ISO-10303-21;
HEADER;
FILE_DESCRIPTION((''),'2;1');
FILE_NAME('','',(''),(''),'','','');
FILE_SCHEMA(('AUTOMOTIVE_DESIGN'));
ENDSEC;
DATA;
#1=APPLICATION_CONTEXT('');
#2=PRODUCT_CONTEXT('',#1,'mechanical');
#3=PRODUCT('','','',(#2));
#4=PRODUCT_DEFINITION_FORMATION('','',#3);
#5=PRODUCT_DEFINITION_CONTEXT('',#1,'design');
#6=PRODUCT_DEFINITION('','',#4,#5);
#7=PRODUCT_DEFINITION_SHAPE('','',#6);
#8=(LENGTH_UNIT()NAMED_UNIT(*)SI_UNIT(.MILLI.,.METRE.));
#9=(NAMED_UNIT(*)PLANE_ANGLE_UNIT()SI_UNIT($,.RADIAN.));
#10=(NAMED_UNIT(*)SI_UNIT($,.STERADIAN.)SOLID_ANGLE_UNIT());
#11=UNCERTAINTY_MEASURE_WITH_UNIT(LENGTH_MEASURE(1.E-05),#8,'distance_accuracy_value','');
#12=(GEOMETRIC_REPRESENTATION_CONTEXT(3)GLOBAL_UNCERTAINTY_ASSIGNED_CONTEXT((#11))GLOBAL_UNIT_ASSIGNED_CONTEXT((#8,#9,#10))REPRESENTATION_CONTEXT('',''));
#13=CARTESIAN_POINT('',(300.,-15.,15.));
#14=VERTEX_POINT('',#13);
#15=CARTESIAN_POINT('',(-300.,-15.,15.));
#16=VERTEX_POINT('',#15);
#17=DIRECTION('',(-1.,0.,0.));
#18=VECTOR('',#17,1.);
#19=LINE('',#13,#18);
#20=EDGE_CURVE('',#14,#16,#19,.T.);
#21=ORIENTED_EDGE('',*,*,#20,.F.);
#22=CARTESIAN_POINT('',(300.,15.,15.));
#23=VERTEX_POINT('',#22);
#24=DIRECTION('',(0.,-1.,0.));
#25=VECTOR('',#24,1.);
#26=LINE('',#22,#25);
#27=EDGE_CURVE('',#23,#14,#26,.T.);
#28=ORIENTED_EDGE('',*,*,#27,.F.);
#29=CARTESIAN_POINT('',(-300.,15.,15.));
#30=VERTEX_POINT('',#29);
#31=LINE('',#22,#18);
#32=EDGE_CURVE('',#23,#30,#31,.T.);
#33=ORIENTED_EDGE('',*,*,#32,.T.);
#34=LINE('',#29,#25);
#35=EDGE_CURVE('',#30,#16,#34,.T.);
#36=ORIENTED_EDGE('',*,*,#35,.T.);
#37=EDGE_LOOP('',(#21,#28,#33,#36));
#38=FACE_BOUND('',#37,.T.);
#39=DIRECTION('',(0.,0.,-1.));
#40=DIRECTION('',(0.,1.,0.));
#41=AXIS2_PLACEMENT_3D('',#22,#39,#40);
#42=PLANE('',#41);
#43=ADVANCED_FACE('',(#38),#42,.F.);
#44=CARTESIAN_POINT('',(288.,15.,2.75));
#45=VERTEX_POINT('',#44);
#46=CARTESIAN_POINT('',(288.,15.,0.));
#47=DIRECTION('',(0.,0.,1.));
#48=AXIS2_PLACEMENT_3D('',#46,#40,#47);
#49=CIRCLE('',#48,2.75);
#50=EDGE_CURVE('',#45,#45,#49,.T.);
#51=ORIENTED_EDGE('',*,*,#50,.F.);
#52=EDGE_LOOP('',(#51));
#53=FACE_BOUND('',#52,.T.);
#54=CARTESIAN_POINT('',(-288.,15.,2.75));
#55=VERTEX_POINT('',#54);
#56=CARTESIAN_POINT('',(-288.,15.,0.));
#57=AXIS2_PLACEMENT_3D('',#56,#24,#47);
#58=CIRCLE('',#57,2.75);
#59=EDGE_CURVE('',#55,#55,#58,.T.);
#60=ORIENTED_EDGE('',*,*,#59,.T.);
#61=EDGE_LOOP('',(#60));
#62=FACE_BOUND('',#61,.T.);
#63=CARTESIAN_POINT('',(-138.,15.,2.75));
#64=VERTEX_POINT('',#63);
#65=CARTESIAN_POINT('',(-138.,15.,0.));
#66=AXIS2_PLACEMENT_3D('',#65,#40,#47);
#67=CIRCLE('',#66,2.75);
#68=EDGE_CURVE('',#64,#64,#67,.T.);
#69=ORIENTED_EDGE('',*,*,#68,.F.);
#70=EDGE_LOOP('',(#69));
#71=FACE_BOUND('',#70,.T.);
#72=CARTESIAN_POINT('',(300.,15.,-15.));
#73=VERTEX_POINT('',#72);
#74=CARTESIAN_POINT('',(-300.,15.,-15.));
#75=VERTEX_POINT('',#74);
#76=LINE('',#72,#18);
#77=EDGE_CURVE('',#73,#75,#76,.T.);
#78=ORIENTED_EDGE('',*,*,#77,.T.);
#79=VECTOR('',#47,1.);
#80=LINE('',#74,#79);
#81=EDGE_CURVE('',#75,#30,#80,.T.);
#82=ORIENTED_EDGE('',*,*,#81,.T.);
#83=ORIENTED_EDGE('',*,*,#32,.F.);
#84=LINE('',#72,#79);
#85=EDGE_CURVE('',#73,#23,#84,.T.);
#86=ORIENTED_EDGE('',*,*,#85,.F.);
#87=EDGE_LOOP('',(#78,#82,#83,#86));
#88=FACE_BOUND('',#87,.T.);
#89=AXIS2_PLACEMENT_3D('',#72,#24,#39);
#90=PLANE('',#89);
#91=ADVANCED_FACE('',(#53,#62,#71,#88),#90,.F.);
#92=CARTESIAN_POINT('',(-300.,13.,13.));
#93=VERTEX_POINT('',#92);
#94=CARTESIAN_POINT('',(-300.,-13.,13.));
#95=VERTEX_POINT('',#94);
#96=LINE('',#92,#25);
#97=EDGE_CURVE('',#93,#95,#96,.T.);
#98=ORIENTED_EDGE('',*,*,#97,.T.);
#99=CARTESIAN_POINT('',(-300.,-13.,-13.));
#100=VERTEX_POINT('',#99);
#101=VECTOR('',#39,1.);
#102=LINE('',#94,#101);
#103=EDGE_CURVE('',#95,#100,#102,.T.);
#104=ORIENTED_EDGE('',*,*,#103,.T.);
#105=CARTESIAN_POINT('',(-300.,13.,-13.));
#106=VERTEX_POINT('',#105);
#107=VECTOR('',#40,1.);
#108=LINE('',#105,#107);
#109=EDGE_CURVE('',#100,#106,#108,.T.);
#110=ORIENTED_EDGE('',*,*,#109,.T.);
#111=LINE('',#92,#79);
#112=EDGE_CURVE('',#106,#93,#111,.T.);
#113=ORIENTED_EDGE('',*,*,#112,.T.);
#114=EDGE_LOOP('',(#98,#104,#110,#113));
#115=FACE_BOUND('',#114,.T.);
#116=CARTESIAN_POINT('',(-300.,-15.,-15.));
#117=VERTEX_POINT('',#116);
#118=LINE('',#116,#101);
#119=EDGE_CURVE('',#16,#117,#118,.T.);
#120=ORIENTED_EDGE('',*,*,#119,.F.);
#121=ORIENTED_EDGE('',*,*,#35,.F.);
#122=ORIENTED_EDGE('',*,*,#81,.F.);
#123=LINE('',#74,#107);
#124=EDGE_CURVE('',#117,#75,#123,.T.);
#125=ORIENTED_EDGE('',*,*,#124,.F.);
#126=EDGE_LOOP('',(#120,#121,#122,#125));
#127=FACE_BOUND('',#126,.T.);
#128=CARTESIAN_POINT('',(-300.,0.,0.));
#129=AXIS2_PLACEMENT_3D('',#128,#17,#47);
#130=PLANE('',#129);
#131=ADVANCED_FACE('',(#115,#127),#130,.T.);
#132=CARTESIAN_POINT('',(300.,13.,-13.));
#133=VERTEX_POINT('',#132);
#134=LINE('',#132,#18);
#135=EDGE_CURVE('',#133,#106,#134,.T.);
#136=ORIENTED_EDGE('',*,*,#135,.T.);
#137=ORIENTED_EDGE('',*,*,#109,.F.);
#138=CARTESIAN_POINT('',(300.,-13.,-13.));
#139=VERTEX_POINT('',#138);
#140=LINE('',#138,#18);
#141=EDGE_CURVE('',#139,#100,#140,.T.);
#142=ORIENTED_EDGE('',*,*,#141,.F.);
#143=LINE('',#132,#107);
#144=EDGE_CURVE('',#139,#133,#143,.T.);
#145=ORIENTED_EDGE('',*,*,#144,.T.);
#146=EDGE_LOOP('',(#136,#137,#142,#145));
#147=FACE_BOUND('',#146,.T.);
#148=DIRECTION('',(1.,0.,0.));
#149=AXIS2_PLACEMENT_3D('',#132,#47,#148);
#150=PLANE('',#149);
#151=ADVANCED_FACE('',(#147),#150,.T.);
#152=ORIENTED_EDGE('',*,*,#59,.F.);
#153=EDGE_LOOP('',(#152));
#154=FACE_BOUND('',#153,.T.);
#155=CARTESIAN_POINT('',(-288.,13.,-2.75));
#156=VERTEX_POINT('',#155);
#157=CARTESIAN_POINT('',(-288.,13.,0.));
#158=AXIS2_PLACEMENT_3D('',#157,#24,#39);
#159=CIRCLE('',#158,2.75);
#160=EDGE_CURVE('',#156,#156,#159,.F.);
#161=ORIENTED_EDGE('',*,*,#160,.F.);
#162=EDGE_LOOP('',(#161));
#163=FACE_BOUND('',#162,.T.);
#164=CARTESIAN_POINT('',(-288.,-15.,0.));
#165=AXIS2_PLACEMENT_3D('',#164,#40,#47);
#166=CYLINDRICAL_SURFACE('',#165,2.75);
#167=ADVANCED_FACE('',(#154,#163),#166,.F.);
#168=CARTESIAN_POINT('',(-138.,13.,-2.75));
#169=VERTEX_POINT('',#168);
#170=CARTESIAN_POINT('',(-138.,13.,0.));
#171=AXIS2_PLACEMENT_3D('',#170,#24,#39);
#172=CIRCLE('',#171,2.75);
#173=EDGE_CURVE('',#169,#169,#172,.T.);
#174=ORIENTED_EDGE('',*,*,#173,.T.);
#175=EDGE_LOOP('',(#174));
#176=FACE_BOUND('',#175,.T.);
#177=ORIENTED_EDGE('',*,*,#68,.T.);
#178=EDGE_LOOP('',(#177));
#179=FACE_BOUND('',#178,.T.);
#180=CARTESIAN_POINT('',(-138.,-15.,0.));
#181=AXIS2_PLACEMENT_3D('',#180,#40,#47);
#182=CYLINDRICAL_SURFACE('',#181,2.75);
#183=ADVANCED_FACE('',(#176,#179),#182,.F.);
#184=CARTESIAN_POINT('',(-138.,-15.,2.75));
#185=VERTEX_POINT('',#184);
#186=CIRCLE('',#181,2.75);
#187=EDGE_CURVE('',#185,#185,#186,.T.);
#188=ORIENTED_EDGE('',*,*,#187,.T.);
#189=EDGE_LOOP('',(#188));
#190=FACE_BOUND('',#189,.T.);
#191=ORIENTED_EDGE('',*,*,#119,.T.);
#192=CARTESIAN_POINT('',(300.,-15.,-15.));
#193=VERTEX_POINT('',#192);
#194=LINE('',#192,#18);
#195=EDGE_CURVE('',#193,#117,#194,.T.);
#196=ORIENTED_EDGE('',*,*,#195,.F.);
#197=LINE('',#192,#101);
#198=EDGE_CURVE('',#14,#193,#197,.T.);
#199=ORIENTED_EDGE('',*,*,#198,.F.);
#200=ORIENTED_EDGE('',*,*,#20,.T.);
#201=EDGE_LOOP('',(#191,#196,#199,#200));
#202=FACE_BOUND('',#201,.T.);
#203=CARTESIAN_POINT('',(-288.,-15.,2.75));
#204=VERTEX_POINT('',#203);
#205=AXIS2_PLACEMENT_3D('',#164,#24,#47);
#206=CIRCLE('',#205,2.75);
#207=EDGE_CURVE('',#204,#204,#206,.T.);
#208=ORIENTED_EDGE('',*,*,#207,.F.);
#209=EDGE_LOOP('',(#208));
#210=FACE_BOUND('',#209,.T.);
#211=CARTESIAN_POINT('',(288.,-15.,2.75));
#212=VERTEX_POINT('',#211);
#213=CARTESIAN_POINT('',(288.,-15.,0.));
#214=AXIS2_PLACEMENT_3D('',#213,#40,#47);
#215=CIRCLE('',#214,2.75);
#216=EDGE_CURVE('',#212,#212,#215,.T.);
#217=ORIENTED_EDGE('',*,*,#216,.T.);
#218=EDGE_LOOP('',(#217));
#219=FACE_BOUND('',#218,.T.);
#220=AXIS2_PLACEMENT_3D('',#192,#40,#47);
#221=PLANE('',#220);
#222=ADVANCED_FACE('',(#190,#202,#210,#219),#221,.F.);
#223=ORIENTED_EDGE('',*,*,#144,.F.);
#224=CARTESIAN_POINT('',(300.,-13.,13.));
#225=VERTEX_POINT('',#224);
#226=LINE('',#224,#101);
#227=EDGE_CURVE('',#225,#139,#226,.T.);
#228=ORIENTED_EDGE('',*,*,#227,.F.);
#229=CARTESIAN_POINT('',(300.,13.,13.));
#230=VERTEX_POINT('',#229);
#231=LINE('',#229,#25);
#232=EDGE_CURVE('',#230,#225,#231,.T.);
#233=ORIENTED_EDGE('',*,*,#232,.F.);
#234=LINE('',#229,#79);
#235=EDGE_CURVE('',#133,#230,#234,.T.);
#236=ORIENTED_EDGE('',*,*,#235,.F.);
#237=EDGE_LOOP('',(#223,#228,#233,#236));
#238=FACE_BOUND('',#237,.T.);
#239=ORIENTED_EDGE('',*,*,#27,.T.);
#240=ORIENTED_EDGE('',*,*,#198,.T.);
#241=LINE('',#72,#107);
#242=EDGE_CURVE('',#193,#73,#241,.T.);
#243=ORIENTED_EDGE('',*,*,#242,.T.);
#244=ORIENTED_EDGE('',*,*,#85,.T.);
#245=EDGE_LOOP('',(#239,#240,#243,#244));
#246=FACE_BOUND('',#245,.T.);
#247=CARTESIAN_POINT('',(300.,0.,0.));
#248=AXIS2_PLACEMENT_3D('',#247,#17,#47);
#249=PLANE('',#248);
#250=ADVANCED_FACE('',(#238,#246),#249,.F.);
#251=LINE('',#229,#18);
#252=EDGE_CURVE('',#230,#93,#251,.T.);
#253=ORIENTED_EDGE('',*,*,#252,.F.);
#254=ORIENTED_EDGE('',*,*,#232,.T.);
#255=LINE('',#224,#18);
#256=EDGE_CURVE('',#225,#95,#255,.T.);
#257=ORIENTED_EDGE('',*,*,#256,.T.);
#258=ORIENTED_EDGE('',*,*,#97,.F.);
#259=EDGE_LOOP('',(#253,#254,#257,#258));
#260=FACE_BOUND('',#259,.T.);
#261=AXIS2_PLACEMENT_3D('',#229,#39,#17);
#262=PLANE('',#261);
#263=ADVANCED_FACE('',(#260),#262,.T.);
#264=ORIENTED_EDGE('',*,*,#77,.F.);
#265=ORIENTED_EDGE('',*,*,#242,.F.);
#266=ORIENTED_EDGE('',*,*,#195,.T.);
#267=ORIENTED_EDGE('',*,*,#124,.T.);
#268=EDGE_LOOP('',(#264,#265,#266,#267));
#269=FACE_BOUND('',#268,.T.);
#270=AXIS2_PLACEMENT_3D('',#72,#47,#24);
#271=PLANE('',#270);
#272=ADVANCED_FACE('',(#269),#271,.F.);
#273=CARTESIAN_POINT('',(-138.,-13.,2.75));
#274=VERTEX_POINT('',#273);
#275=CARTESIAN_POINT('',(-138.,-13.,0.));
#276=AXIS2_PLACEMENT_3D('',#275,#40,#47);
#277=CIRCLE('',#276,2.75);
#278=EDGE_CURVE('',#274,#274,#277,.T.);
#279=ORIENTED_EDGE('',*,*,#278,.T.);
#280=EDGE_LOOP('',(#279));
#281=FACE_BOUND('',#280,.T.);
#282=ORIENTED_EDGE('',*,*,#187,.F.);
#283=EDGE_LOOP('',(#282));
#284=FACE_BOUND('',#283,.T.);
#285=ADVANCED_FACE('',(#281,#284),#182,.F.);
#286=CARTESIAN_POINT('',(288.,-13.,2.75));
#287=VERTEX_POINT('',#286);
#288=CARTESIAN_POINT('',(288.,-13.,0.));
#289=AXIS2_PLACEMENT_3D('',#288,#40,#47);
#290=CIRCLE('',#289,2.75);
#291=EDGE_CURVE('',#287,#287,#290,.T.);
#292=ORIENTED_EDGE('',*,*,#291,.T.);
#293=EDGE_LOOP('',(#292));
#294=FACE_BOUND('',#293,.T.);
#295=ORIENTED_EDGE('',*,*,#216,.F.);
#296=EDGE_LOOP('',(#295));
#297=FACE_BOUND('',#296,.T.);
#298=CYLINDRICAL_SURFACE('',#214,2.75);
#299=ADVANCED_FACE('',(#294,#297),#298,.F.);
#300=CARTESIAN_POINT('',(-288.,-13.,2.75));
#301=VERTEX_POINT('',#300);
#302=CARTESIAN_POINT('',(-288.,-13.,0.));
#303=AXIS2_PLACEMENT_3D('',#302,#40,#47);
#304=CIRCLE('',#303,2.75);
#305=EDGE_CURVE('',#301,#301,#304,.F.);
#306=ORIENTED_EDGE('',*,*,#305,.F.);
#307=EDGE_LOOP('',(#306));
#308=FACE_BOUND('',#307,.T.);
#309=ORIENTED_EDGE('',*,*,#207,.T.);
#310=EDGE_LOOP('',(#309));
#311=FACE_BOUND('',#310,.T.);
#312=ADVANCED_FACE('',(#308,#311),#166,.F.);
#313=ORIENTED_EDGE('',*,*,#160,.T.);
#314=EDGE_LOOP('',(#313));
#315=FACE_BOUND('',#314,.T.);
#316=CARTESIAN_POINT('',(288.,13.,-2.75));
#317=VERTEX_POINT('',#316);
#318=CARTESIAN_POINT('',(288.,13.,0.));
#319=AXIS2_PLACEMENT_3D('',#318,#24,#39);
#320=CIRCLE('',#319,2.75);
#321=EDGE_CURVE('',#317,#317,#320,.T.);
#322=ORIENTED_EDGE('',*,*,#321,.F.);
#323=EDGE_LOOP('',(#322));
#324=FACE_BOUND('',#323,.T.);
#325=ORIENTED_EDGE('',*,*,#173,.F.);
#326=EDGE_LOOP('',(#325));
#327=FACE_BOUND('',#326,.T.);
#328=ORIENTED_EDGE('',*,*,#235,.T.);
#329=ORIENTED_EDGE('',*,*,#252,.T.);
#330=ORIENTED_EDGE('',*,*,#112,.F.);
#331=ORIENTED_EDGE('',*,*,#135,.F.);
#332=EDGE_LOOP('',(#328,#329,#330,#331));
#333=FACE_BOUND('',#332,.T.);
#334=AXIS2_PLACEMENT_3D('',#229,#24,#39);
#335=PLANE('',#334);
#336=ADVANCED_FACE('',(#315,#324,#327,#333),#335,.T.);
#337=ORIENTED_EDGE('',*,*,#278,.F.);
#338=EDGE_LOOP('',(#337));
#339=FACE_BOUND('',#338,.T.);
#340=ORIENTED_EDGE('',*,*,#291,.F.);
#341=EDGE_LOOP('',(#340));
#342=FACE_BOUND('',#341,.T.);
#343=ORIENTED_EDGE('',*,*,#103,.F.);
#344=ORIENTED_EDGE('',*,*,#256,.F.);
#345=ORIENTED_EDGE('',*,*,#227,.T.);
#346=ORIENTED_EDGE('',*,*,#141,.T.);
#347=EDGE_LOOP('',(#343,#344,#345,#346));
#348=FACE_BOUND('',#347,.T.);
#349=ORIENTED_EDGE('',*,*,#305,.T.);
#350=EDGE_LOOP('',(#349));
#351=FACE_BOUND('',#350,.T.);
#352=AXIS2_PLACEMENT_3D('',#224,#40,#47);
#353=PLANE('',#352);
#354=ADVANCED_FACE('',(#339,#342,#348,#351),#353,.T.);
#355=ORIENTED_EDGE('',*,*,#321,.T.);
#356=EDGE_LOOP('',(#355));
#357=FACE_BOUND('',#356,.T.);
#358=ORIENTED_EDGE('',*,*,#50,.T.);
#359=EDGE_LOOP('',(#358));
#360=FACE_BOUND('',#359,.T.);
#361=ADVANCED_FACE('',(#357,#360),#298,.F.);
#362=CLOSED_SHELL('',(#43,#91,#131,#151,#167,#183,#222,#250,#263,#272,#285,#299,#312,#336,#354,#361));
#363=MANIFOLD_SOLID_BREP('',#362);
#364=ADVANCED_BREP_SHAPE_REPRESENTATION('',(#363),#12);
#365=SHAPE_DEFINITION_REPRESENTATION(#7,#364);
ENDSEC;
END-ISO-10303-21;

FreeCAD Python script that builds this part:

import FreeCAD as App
import Part
import Sketcher
from FreeCAD import Vector


def add_polygon(sketch, points):
    """Adds a closed chain of lines whose ends are joined by coincident constraints."""
    first, n = sketch.GeometryCount, len(points)
    for a, b in zip(points, points[1:] + points[:1]):
        sketch.addGeometry(Part.LineSegment(App.Vector(*a, 0), App.Vector(*b, 0)), False)
    for i in range(n):
        sketch.addConstraint(Sketcher.Constraint("Coincident", first + i, 2, first + (i + 1) % n, 1))

doc = App.newDocument("Part")
body = doc.addObject("PartDesign::Body", "Body")

# Sketch on YZ plane
sketch1 = body.newObject("Sketcher::SketchObject", "Sketch")
sketch1.AttachmentSupport = (doc.getObject("YZ_Plane"), [""])
sketch1.MapMode = "FlatFace"
add_polygon(sketch1, [(15, 15), (-15, 15), (-15, -15), (15, -15)])  # lines 0-3
add_polygon(sketch1, [(-13, -13), (-13, 13), (13, 13), (13, -13)])  # lines 4-7
sketch1.addConstraint(Sketcher.Constraint("Horizontal", 0))
sketch1.addConstraint(Sketcher.Constraint("Vertical", 1))
sketch1.addConstraint(Sketcher.Constraint("Horizontal", 2))
sketch1.addConstraint(Sketcher.Constraint("Vertical", 3))
sketch1.addConstraint(Sketcher.Constraint("Vertical", 4))
sketch1.addConstraint(Sketcher.Constraint("Horizontal", 5))
sketch1.addConstraint(Sketcher.Constraint("Vertical", 6))
sketch1.addConstraint(Sketcher.Constraint("Horizontal", 7))
sketch1.addConstraint(Sketcher.Constraint("Symmetric", 0, 2, 2, 2, -1, 1))
sketch1.addConstraint(Sketcher.Constraint("Symmetric", 4, 2, 6, 2, -1, 1))
sketch1.addConstraint(Sketcher.Constraint("Equal", 2, 1))
sketch1.addConstraint(Sketcher.Constraint("Equal", 7, 4))
sketch1.addConstraint(Sketcher.Constraint("DistanceX", 0, 2, 0, 1, 30.0))
sketch1.addConstraint(Sketcher.Constraint("DistanceX", 5, 1, 5, 2, 26.0))
pad1 = body.newObject("PartDesign::Pad", "Pad")
pad1.Profile = sketch1
pad1.Length = 600
pad1.Midplane = True

# Sketch on XZ plane
sketch2 = body.newObject("Sketcher::SketchObject", "Sketch001")
sketch2.AttachmentSupport = (doc.getObject("XZ_Plane"), [""])
sketch2.MapMode = "FlatFace"
sketch2.addGeometry(Part.Circle(Vector(288, 0, 0), Vector(0, 0, 1), 2.8), False)
sketch2.addConstraint(Sketcher.Constraint("PointOnObject", 0, 3, -1))
sketch2.addConstraint(Sketcher.Constraint("Diameter", 0, 5.5))
sketch2.addConstraint(Sketcher.Constraint("DistanceX", -1, 1, 0, 3, 288.0))
pocket1 = body.newObject("PartDesign::Pocket", "Pocket")
pocket1.Profile = sketch2
pocket1.Length = 603.49813
pocket1.Midplane = True
doc.recompute()

mirrored = body.newObject("PartDesign::Mirrored", "Mirrored")
mirrored.Originals = [pocket1]
mirrored.MirrorPlane = (doc.getObject("YZ_Plane"), [""])
body.Tip = mirrored

# Sketch on XZ plane
sketch3 = body.newObject("Sketcher::SketchObject", "Sketch002")
sketch3.AttachmentSupport = (doc.getObject("XZ_Plane"), [""])
sketch3.MapMode = "FlatFace"
sketch3.addGeometry(Part.Circle(Vector(-138, 0, 0), Vector(0, 0, 1), 2.8), False)
sketch3.addConstraint(Sketcher.Constraint("PointOnObject", 0, 3, -1))
sketch3.addConstraint(Sketcher.Constraint("Diameter", 0, 5.5))
sketch3.addConstraint(Sketcher.Constraint("DistanceX", 0, 3, -1, 1, 138.0))
pocket2 = body.newObject("PartDesign::Pocket", "Pocket001")
pocket2.Profile = sketch3
pocket2.Type = "ThroughAll"
pocket2.Midplane = True

doc.recompute()
